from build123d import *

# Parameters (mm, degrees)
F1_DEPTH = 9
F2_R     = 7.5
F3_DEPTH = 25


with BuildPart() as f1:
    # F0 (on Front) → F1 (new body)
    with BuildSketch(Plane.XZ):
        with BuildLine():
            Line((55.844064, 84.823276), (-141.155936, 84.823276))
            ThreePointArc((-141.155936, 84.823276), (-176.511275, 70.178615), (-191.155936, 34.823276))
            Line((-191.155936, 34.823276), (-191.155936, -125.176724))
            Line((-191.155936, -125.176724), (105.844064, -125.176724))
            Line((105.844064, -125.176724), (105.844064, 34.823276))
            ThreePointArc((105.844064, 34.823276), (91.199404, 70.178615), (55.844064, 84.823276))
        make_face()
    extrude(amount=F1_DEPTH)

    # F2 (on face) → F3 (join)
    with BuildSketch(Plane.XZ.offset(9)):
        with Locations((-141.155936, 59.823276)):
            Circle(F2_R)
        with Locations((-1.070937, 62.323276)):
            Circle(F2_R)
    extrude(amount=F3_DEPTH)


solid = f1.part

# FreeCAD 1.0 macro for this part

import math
import FreeCAD as App
import Part
import Sketcher

V = App.Vector
Q = App.Units.Quantity

doc = App.newDocument("Part")
params = doc.addObject("Spreadsheet::Sheet", "Params")
for row, (alias, value) in enumerate([
    ("sketch1_radius", "50 mm"),
    ("sketch1_width", "197 mm"),
    ("sketch1_height", "160 mm"),
    ("pad1_length", "9 mm"),
    ("sketch2_diameter", "15 mm"),
    ("pad2_length", "25 mm"),
], start=1):
    params.set(f"A{row}", alias)
    params.set(f"B{row}", "=" + value)
    params.setAlias(f"B{row}", alias)

body = doc.addObject("PartDesign::Body", "Body")

sketch1 = body.newObject("Sketcher::SketchObject", "Sketch")
sketch1.AttachmentSupport = (doc.getObject("XZ_Plane"), [""])
sketch1.MapMode = "FlatFace"
sketch1.addGeometry([
    Part.LineSegment(V(56, 85, 0), V(-141, 85, 0)),
    Part.ArcOfCircle(Part.Circle(V(-141, 35, 0), V(0, 0, 1), 50), math.radians(90), math.radians(180)),
    Part.LineSegment(V(-191, 35, 0), V(-191, -125, 0)),
    Part.LineSegment(V(-191, -125, 0), V(106, -125, 0)),
    Part.LineSegment(V(106, -125, 0), V(106, 35, 0)),
    Part.ArcOfCircle(Part.Circle(V(56, 35, 0), V(0, 0, 1), 50), math.radians(0), math.radians(90)),
], False)
sketch1.addConstraint([
    Sketcher.Constraint("Tangent", 0, 2, 1, 1),
    Sketcher.Constraint("Tangent", 1, 2, 2, 1),
    Sketcher.Constraint("Coincident", 2, 2, 3, 1),
    Sketcher.Constraint("Coincident", 3, 2, 4, 1),
    Sketcher.Constraint("Tangent", 4, 2, 5, 1),
    Sketcher.Constraint("Tangent", 5, 2, 0, 1),
    Sketcher.Constraint("Horizontal", 0),
    Sketcher.Constraint("Vertical", 2),
    Sketcher.Constraint("Horizontal", 3),
    Sketcher.Constraint("Vertical", 4),
    Sketcher.Constraint("Equal", 1, 5),
    Sketcher.Constraint("Radius", 1, Q("50 mm")),
    Sketcher.Constraint("DistanceX", 0, 2, 0, 1, Q("197 mm")),
    Sketcher.Constraint("DistanceY", 2, 2, 2, 1, Q("160 mm")),
    Sketcher.Constraint("DistanceX", 1, 3, -1, 1, Q("141.155936 mm")),
    Sketcher.Constraint("DistanceY", -1, 1, 1, 3, Q("34.823276 mm")),
])
sketch1.setExpression("Constraints[11]", "Params.sketch1_radius")
sketch1.setExpression("Constraints[12]", "Params.sketch1_width")
sketch1.setExpression("Constraints[13]", "Params.sketch1_height")
pad1 = body.newObject("PartDesign::Pad", "Pad")
pad1.Profile = sketch1
pad1.setExpression("Length", "Params.pad1_length")

sketch2 = body.newObject("Sketcher::SketchObject", "Sketch001")
sketch2.AttachmentSupport = (doc.getObject("XZ_Plane"), [""])
sketch2.MapMode = "FlatFace"
sketch2.AttachmentOffset = App.Placement(V(0, 0, 9), App.Rotation())
sketch2.addGeometry([
    Part.Circle(V(-141, 60, 0), V(0, 0, 1), 8),
    Part.Circle(V(-1, 62, 0), V(0, 0, 1), 8),
], False)
sketch2.addConstraint([
    Sketcher.Constraint("Equal", 0, 1),
    Sketcher.Constraint("Diameter", 0, Q("15 mm")),
    Sketcher.Constraint("DistanceY", 0, 3, 1, 3, Q("2.5 mm")),
    Sketcher.Constraint("DistanceX", 0, 3, 1, 3, Q("140.084999 mm")),
    Sketcher.Constraint("DistanceX", 0, 3, -1, 1, Q("141.155936 mm")),
    Sketcher.Constraint("DistanceY", -1, 1, 0, 3, Q("59.823276 mm")),
])
sketch2.setExpression("Constraints[1]", "Params.sketch2_diameter")
pad2 = body.newObject("PartDesign::Pad", "Pad001")
pad2.Profile = sketch2
pad2.setExpression("Length", "Params.pad2_length")

doc.recompute()
